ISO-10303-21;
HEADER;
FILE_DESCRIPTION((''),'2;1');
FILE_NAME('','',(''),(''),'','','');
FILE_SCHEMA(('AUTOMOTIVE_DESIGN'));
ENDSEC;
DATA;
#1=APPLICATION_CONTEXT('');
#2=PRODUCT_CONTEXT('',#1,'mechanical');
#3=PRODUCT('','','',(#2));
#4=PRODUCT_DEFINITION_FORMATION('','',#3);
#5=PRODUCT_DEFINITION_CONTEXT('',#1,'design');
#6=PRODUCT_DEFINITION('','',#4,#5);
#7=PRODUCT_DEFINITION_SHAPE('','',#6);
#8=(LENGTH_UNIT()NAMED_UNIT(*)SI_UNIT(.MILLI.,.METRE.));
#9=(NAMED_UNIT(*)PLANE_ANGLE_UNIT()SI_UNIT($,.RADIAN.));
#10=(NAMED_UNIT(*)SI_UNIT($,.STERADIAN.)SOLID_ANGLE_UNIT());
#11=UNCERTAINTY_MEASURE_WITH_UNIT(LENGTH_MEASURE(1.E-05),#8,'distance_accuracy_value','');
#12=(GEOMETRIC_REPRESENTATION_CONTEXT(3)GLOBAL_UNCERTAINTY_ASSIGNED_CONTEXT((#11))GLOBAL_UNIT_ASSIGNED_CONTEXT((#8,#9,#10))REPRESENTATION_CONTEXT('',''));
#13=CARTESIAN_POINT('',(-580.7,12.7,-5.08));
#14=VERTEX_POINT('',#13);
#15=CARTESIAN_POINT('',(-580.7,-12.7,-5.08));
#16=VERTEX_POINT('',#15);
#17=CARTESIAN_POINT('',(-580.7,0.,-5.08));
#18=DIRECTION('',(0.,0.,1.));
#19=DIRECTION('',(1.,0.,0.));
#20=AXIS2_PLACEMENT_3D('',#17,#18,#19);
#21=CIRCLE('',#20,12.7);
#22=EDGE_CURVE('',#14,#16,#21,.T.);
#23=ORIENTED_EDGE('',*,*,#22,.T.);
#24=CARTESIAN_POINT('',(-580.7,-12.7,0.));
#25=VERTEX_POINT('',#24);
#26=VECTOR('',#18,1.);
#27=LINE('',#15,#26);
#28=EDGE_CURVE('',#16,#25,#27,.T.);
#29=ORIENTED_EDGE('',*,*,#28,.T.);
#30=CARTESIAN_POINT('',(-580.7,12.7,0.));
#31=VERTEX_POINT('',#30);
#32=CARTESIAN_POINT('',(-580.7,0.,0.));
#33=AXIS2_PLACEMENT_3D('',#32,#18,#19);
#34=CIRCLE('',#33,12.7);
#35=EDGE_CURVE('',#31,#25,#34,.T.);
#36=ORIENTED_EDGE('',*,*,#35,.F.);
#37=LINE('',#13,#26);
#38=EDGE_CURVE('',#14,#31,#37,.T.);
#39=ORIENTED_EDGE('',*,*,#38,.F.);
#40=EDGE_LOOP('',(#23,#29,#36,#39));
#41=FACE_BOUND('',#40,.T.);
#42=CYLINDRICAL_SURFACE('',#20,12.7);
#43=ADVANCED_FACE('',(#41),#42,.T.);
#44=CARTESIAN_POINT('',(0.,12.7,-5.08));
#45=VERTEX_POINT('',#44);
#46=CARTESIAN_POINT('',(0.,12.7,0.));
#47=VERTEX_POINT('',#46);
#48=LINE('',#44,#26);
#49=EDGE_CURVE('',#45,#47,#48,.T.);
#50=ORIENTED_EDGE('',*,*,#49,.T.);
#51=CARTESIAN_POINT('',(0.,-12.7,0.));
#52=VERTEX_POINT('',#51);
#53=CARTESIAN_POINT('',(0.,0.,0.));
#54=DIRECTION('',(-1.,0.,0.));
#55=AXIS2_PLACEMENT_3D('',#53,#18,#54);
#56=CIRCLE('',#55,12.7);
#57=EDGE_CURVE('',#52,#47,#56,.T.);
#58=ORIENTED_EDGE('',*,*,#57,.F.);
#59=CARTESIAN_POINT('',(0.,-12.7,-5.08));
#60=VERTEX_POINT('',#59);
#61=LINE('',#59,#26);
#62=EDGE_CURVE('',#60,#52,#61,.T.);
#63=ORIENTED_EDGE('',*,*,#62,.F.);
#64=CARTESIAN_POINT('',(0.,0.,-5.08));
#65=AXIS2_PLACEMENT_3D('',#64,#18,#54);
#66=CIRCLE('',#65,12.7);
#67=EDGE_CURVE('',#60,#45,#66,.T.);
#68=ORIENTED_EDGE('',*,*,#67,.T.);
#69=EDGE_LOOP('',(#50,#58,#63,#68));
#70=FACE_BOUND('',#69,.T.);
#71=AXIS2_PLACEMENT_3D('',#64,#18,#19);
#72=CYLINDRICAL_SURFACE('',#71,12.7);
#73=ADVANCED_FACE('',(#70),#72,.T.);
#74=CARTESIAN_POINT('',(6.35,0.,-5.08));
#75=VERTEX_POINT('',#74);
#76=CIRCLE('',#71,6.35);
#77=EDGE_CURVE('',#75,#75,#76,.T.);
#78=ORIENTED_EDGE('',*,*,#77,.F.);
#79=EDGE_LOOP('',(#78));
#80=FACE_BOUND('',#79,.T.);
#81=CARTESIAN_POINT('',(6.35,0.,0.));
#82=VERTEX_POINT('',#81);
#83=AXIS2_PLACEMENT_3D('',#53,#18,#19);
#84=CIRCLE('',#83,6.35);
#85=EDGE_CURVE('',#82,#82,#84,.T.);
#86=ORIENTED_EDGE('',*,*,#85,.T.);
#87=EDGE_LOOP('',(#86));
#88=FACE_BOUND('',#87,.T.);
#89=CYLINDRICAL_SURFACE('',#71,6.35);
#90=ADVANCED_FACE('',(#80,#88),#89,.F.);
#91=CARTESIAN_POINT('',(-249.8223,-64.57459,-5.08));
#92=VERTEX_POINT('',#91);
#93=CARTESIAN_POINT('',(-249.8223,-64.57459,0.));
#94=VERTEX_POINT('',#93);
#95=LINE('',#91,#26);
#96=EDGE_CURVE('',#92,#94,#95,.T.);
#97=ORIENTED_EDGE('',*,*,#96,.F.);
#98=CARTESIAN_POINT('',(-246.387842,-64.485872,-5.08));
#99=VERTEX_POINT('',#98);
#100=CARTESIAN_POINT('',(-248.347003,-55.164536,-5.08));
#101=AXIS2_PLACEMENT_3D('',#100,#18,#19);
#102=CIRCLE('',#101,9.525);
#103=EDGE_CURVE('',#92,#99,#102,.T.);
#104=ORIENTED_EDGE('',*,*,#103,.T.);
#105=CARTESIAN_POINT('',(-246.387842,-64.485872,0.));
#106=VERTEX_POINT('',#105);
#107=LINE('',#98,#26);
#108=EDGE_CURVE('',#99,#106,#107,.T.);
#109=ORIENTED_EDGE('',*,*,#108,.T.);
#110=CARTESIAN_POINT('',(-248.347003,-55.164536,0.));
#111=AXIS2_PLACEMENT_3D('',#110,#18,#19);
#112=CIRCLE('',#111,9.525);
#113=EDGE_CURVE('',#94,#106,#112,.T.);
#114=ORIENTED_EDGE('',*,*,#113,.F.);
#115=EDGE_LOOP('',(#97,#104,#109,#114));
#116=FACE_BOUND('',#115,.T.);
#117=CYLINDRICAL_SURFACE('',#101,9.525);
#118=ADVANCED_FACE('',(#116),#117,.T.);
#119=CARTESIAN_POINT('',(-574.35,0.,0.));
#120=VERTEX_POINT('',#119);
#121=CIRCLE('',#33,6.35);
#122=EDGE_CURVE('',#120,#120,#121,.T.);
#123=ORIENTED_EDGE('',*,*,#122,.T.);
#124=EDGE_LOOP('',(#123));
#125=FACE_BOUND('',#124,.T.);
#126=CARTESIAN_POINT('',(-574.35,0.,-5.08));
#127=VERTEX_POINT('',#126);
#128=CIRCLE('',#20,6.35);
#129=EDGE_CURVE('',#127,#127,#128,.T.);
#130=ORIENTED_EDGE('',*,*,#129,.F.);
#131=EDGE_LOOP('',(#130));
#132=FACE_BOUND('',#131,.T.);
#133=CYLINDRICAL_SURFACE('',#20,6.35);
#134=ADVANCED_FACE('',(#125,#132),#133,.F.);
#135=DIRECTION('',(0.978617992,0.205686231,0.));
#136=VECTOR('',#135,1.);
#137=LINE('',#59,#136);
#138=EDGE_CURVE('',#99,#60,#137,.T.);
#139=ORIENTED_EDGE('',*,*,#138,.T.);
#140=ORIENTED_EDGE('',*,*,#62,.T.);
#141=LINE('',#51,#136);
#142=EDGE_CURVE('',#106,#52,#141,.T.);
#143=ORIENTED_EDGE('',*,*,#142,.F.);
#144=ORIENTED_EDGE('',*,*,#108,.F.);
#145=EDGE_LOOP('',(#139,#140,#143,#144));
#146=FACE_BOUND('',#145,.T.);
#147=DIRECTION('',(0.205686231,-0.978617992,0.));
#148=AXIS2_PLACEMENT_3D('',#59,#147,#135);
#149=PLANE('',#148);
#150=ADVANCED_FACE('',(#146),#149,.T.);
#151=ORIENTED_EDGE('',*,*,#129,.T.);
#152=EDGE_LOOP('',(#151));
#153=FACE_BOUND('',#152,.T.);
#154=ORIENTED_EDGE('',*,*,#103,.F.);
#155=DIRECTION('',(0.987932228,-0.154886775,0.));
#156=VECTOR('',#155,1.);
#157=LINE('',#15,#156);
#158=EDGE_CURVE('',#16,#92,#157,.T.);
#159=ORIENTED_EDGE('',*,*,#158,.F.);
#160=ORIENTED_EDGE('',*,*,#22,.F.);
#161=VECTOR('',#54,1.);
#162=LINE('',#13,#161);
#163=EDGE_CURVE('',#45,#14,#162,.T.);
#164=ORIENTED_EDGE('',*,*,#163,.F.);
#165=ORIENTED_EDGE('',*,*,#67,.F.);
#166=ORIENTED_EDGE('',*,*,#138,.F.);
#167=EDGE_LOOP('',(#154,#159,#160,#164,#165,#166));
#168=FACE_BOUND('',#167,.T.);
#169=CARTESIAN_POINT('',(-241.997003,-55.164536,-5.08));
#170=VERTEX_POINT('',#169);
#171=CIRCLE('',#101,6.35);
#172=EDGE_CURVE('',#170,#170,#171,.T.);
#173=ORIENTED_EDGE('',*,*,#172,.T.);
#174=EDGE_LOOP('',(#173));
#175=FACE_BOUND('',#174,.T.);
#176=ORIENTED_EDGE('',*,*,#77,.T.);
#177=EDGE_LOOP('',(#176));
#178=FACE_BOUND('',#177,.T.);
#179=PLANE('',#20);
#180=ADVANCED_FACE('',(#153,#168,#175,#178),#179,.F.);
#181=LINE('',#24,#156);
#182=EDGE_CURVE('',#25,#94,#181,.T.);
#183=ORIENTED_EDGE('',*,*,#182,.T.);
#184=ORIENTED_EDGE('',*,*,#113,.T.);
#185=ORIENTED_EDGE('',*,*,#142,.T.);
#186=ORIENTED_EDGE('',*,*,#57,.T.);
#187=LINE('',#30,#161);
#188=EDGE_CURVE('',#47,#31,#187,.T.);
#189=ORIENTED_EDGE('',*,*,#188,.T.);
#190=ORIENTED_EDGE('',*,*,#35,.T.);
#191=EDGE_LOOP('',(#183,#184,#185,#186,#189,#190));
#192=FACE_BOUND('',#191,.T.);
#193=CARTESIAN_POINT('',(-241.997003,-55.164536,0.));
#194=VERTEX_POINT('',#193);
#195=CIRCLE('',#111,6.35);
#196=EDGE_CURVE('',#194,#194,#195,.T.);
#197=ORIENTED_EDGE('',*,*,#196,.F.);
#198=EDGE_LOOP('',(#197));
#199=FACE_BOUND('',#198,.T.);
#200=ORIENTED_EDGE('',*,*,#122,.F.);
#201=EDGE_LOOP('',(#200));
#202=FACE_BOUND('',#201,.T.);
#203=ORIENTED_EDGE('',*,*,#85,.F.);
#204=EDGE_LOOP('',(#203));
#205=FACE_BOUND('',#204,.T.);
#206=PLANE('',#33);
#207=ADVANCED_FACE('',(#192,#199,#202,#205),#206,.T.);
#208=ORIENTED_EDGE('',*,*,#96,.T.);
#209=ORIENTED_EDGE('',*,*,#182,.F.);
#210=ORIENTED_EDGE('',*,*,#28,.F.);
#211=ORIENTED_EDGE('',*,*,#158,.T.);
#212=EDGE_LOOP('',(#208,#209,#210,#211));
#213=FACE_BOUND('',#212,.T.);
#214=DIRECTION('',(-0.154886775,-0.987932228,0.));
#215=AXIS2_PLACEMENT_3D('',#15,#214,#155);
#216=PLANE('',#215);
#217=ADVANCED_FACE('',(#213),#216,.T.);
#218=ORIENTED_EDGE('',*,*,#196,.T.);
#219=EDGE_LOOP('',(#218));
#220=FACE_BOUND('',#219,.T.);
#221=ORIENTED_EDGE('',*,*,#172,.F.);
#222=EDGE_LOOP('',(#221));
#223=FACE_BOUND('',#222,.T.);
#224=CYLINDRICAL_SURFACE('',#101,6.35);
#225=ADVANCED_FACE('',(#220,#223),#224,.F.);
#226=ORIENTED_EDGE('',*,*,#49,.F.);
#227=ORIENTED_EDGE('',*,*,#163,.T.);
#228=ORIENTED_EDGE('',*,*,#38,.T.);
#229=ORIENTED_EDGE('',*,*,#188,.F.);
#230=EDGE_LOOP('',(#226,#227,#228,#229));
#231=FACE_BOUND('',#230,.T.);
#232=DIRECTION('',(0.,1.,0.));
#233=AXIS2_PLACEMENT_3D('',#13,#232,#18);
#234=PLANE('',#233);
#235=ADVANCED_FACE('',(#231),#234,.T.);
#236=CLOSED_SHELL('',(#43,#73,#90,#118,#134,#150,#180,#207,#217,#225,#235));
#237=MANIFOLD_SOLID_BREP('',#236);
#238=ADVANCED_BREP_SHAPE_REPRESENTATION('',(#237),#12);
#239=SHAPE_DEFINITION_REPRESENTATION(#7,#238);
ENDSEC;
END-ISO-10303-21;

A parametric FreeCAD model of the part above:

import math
import FreeCAD as App
import Part
import Sketcher
from FreeCAD import Vector
Q = App.Units.Quantity

doc = App.newDocument("Part")
body = doc.addObject("PartDesign::Body", "Body")

# Sketch on XY plane
sketch1 = doc.addObject("Sketcher::SketchObject", "Sketch")
body.addObject(sketch1)
sketch1.AttachmentSupport = (doc.XY_Plane, [""])
sketch1.MapMode = "FlatFace"
sketch1.addGeometry([
    Part.LineSegment(Vector(0, 12.7, 0), Vector(-580.7, 12.7, 0)),  # 0
    Part.ArcOfCircle(Part.Circle(Vector(-580.7, 0, 0), Vector(0, 0, 1), 12.7), math.radians(90), math.radians(270)),  # 1
    Part.LineSegment(Vector(-580.7, -12.7, 0), Vector(-249.8223, -64.57459, 0)),  # 2
    Part.ArcOfCircle(Part.Circle(Vector(-248.347003, -55.164536, 0), Vector(0, 0, 1), 9.525), math.radians(-98.91023), math.radians(-78.130327)),  # 3
    Part.LineSegment(Vector(-246.387842, -64.485872, 0), Vector(0, -12.7, 0)),  # 4
    Part.ArcOfCircle(Part.Circle(Vector(0, 0, 0), Vector(0, 0, 1), 12.7), math.radians(-90), math.radians(90)),  # 5
    Part.Circle(Vector(-248.347003, -55.164536, 0), Vector(0, 0, 1), 6.35),  # 6
    Part.Circle(Vector(0, 0, 0), Vector(0, 0, 1), 6.35),  # 7
    Part.Circle(Vector(-580.7, 0, 0), Vector(0, 0, 1), 6.35),  # 8
], False)
sketch1.addConstraint([
    Sketcher.Constraint("Tangent", 0, 2, 1, 1),
    Sketcher.Constraint("Coincident", 1, 2, 2, 1),
    Sketcher.Constraint("Tangent", 2, 2, 3, 1),
    Sketcher.Constraint("Tangent", 3, 2, 4, 1),
    Sketcher.Constraint("Coincident", 4, 2, 5, 1),
    Sketcher.Constraint("Tangent", 5, 2, 0, 1),
    Sketcher.Constraint("Horizontal", 0),
    Sketcher.Constraint("Coincident", 5, 3, -1, 1),
    Sketcher.Constraint("Coincident", 7, 3, -1, 1),
    Sketcher.Constraint("Coincident", 6, 3, 3, 3),
    Sketcher.Constraint("Coincident", 8, 3, 1, 3),
    Sketcher.Constraint("Equal", 1, 5),
    Sketcher.Constraint("Equal", 6, 7),
    Sketcher.Constraint("Equal", 7, 8),
    Sketcher.Constraint("PointOnObject", 4, 2, -2),
    Sketcher.Constraint("Vertical", 0, 2, 1, 2),
    Sketcher.Constraint("Diameter", 6, Q("0.5 in")),
    Sketcher.Constraint("Radius", 1, Q("0.5 in")),
    Sketcher.Constraint("Radius", 3, Q("0.375 in")),
    Sketcher.Constraint("DistanceX", 0, 2, 0, 1, Q("580.7 mm")),
    Sketcher.Constraint("DistanceX", 2, 2, -1, 1, Q("249.8223 mm")),
    Sketcher.Constraint("Distance", 2, Q("334.919432 mm")),
])
pad1 = doc.addObject("PartDesign::Pad", "Pad")
body.addObject(pad1)
pad1.Profile = sketch1
pad1.Length = Q("0.2 in")
pad1.Reversed = True

doc.recompute()
